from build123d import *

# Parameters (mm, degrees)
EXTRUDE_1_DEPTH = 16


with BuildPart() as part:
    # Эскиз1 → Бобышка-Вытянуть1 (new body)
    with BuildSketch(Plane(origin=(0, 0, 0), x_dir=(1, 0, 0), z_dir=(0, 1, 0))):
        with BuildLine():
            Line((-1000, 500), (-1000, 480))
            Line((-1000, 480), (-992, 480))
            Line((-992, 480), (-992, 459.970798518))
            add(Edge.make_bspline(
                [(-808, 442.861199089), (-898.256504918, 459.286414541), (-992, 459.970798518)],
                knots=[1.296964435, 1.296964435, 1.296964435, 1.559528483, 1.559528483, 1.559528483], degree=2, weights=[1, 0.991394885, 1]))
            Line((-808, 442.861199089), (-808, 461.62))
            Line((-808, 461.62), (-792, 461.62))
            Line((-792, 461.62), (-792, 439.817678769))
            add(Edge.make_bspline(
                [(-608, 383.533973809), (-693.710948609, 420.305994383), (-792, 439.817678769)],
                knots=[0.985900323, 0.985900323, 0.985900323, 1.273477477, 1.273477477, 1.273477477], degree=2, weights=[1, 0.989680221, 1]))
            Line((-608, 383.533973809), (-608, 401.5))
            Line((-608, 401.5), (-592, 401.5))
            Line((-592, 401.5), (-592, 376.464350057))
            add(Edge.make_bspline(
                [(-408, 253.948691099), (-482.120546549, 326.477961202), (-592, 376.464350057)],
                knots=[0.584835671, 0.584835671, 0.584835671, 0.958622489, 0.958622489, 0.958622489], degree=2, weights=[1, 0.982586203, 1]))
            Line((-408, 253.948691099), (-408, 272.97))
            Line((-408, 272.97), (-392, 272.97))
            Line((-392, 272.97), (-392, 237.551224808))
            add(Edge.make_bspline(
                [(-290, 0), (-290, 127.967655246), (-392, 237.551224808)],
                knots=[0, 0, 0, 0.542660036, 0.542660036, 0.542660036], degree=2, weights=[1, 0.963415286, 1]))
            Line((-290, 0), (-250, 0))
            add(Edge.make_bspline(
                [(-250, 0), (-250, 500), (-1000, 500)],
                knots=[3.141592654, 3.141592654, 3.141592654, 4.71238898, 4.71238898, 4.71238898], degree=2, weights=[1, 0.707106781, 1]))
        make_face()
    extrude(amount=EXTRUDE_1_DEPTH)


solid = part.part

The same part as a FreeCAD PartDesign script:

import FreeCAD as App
import Part
import Sketcher

doc = App.newDocument("Part")
params = doc.addObject("Spreadsheet::Sheet", "Params")
for row, (alias, value) in enumerate([
    ("sketch1_height", "20 mm"),
    ("pad1_length", "16 mm"),
], start=1):
    params.set(f"A{row}", alias)
    params.set(f"B{row}", "=" + value)
    params.setAlias(f"B{row}", alias)

body = doc.addObject("PartDesign::Body", "Body")

sketch1 = doc.addObject("Sketcher::SketchObject", "Sketch")
body.addObject(sketch1)
sketch1.AttachmentSupport = (doc.XZ_Plane, [""])
sketch1.MapMode = "FlatFace"
sketch1.addGeometry([
    Part.LineSegment(App.Vector(-1000, -500, 0), App.Vector(-1000, -480, 0)),
    Part.LineSegment(App.Vector(-1000, -480, 0), App.Vector(-992, -480, 0)),
    Part.LineSegment(App.Vector(-992, -480, 0), App.Vector(-992, -459.970799, 0)),
    Part.BSplineCurve([App.Vector(-808, -442.861199, 0), App.Vector(-898.256505, -459.286415, 0), App.Vector(-992, -459.970799, 0)], [3, 3], [1.296964435, 1.559528483], False, 2, [1, 0.991394885, 1], False),
    Part.LineSegment(App.Vector(-808, -442.861199, 0), App.Vector(-808, -461.62, 0)),
    Part.LineSegment(App.Vector(-808, -461.62, 0), App.Vector(-792, -461.62, 0)),
    Part.LineSegment(App.Vector(-792, -461.62, 0), App.Vector(-792, -439.817679, 0)),
    Part.BSplineCurve([App.Vector(-608, -383.533974, 0), App.Vector(-693.710949, -420.305994, 0), App.Vector(-792, -439.817679, 0)], [3, 3], [0.985900323, 1.273477477], False, 2, [1, 0.989680221, 1], False),
    Part.LineSegment(App.Vector(-608, -383.533974, 0), App.Vector(-608, -401.5, 0)),
    Part.LineSegment(App.Vector(-608, -401.5, 0), App.Vector(-592, -401.5, 0)),
    Part.LineSegment(App.Vector(-592, -401.5, 0), App.Vector(-592, -376.46435, 0)),
    Part.BSplineCurve([App.Vector(-408, -253.948691, 0), App.Vector(-482.120547, -326.477961, 0), App.Vector(-592, -376.46435, 0)], [3, 3], [0.584835671, 0.958622489], False, 2, [1, 0.982586203, 1], False),
    Part.LineSegment(App.Vector(-408, -253.948691, 0), App.Vector(-408, -272.97, 0)),
    Part.LineSegment(App.Vector(-408, -272.97, 0), App.Vector(-392, -272.97, 0)),
    Part.LineSegment(App.Vector(-392, -272.97, 0), App.Vector(-392, -237.551225, 0)),
    Part.BSplineCurve([App.Vector(-290, 0, 0), App.Vector(-290, -127.967655, 0), App.Vector(-392, -237.551225, 0)], [3, 3], [0, 0.542660036], False, 2, [1, 0.963415286, 1], False),
    Part.LineSegment(App.Vector(-290, 0, 0), App.Vector(-250, 0, 0)),
    Part.BSplineCurve([App.Vector(-250, 0, 0), App.Vector(-250, -500, 0), App.Vector(-1000, -500, 0)], [3, 3], [3.141592654, 4.71238898], False, 2, [1, 0.707106781, 1], False),
], False)
sketch1.addConstraint([
    Sketcher.Constraint("Block", 3),
    Sketcher.Constraint("Block", 7),
    Sketcher.Constraint("Block", 11),
    Sketcher.Constraint("Block", 15),
    Sketcher.Constraint("Block", 17),
    Sketcher.Constraint("Coincident", 0, 2, 1, 1),
    Sketcher.Constraint("Coincident", 1, 2, 2, 1),
    Sketcher.Constraint("Coincident", 2, 2, 3, 2),
    Sketcher.Constraint("Coincident", 3, 1, 4, 1),
    Sketcher.Constraint("Coincident", 4, 2, 5, 1),
    Sketcher.Constraint("Coincident", 5, 2, 6, 1),
    Sketcher.Constraint("Coincident", 6, 2, 7, 2),
    Sketcher.Constraint("Coincident", 7, 1, 8, 1),
    Sketcher.Constraint("Coincident", 8, 2, 9, 1),
    Sketcher.Constraint("Coincident", 9, 2, 10, 1),
    Sketcher.Constraint("Coincident", 10, 2, 11, 2),
    Sketcher.Constraint("Coincident", 11, 1, 12, 1),
    Sketcher.Constraint("Coincident", 12, 2, 13, 1),
    Sketcher.Constraint("Coincident", 13, 2, 14, 1),
    Sketcher.Constraint("Coincident", 14, 2, 15, 2),
    Sketcher.Constraint("Coincident", 15, 1, 16, 1),
    Sketcher.Constraint("Coincident", 16, 2, 17, 1),
    Sketcher.Constraint("Coincident", 17, 2, 0, 1),
    Sketcher.Constraint("Vertical", 0),
    Sketcher.Constraint("Horizontal", 1),
    Sketcher.Constraint("Vertical", 2),
    Sketcher.Constraint("Vertical", 4),
    Sketcher.Constraint("Horizontal", 5),
    Sketcher.Constraint("Vertical", 6),
    Sketcher.Constraint("Vertical", 8),
    Sketcher.Constraint("Horizontal", 9),
    Sketcher.Constraint("Vertical", 10),
    Sketcher.Constraint("Vertical", 12),
    Sketcher.Constraint("Horizontal", 13),
    Sketcher.Constraint("Vertical", 14),
    Sketcher.Constraint("DistanceY", 0, 1, 0, 2, 20.0),
    Sketcher.Constraint("DistanceY", 8, 2, -1, 1, 401.5),
    Sketcher.Constraint("DistanceY", 4, 2, -1, 1, 461.62),
    Sketcher.Constraint("DistanceY", 12, 2, -1, 1, 272.97),
])
sketch1.setExpression("Constraints[35]", "Params.sketch1_height")
pad1 = doc.addObject("PartDesign::Pad", "Pad")
body.addObject(pad1)
pad1.Profile = sketch1
pad1.setExpression("Length", "Params.pad1_length")
pad1.Reversed = True

doc.recompute()
